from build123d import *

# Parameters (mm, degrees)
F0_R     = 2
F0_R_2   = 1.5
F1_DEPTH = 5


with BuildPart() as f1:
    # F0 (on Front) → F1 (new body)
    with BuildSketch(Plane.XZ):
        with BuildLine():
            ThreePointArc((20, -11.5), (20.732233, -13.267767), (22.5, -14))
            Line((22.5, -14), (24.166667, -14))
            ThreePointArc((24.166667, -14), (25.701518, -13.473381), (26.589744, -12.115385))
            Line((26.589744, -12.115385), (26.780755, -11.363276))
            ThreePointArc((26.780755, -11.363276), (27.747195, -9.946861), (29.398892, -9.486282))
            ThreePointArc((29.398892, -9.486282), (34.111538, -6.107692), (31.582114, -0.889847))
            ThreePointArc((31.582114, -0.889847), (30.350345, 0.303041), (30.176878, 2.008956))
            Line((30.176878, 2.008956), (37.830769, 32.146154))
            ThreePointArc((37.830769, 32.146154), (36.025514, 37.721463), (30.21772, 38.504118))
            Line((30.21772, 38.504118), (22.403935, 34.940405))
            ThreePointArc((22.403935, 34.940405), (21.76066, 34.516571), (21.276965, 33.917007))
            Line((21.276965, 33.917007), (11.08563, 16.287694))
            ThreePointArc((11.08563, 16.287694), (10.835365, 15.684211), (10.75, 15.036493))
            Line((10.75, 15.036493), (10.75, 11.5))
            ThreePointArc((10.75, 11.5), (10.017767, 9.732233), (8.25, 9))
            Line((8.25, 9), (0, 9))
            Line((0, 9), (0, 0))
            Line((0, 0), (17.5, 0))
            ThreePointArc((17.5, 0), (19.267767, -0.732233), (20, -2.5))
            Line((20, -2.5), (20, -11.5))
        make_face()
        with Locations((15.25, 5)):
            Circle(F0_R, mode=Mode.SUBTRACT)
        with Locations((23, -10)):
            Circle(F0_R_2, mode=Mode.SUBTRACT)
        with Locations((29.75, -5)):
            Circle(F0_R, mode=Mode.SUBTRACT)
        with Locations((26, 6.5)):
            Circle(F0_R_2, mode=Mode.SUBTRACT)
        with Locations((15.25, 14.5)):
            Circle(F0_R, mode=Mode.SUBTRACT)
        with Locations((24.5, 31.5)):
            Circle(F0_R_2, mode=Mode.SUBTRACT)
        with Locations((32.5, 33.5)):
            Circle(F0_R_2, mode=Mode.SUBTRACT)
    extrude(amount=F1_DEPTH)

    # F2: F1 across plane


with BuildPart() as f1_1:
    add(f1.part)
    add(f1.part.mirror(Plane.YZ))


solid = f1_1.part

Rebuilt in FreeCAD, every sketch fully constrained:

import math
import FreeCAD as App
import Part
import Sketcher

V = App.Vector
Q = App.Units.Quantity

doc = App.newDocument("Part")
body = doc.addObject("PartDesign::Body", "Body")

sketch1 = body.newObject("Sketcher::SketchObject", "Sketch")
sketch1.AttachmentSupport = (doc.getObject("XZ_Plane"), [""])
sketch1.MapMode = "FlatFace"
sketch1.addGeometry([
    Part.ArcOfCircle(Part.Circle(V(22.5, -11.5, 0), V(0, 0, 1), 2.5), math.radians(179.999996), math.radians(270.000004)),
    Part.LineSegment(V(22.5, -14, 0), V(24.166667, -14, 0)),
    Part.ArcOfCircle(Part.Circle(V(24.166667, -11.5, 0), V(0, 0, 1), 2.5), math.radians(-89.999999), math.radians(-14.250047)),
    Part.LineSegment(V(26.589744, -12.115385, 0), V(26.780755, -11.363276, 0)),
    Part.ArcOfCircle(Part.Circle(V(29.203831, -11.97866, 0), V(0, 0, 1), 2.499999), math.radians(85.52499), math.radians(165.749979)),
    Part.ArcOfCircle(Part.Circle(V(29.749999, -5, 0), V(0, 0, 1), 4.5), math.radians(-94.474983), math.radians(65.974913)),
    Part.ArcOfCircle(Part.Circle(V(32.599954, 1.393571, 0), V(0, 0, 1), 2.499999), math.radians(165.749949), math.radians(245.974947)),
    Part.LineSegment(V(30.176878, 2.008956, 0), V(37.830769, 32.146154, 0)),
    Part.ArcOfCircle(Part.Circle(V(32.5, 33.5, 0), V(0, 0, 1), 5.5), math.radians(-14.250033), math.radians(114.516799)),
    Part.LineSegment(V(30.21772, 38.504118, 0), V(22.403935, 34.940405, 0)),
    Part.ArcOfCircle(Part.Circle(V(23.441337, 32.665803, 0), V(0, 0, 1), 2.500004), math.radians(114.516809), math.radians(149.968175)),
    Part.LineSegment(V(21.276965, 33.917007, 0), V(11.08563, 16.287694, 0)),
    Part.ArcOfCircle(Part.Circle(V(13.25, 15.036494, 0), V(0, 0, 1), 2.5), math.radians(149.968226), math.radians(180.000015)),
    Part.LineSegment(V(10.75, 15.036493, 0), V(10.75, 11.5, 0)),
    Part.ArcOfCircle(Part.Circle(V(8.25, 11.5, 0), V(0, 0, 1), 2.5), math.radians(-90.000004), math.radians(0.000004)),
    Part.LineSegment(V(8.25, 9, 0), V(0, 9, 0)),
    Part.LineSegment(V(0, 9, 0), V(0, 0, 0)),
    Part.LineSegment(V(0, 0, 0), V(17.5, 0, 0)),
    Part.ArcOfCircle(Part.Circle(V(17.5, -2.5, 0), V(0, 0, 1), 2.5), math.radians(-0.000004), math.radians(90.000004)),
    Part.LineSegment(V(20, -2.5, 0), V(20, -11.5, 0)),
    Part.Circle(V(23, -10, 0), V(0, 0, 1), 1.5),
    Part.Circle(V(15.25, 5, 0), V(0, 0, 1), 2),
    Part.Circle(V(29.75, -5, 0), V(0, 0, 1), 2),
    Part.Circle(V(26, 6.5, 0), V(0, 0, 1), 1.5),
    Part.Circle(V(15.25, 14.5, 0), V(0, 0, 1), 2),
    Part.Circle(V(24.5, 31.5, 0), V(0, 0, 1), 1.5),
    Part.Circle(V(32.5, 33.5, 0), V(0, 0, 1), 1.5),
], False)
sketch1.addConstraint([
    Sketcher.Constraint("Coincident", 0, 2, 1, 1),
    Sketcher.Constraint("Coincident", 1, 2, 2, 1),
    Sketcher.Constraint("Coincident", 2, 2, 3, 1),
    Sketcher.Constraint("Coincident", 3, 2, 4, 2),
    Sketcher.Constraint("Coincident", 4, 1, 5, 1),
    Sketcher.Constraint("Coincident", 5, 2, 6, 2),
    Sketcher.Constraint("Coincident", 6, 1, 7, 1),
    Sketcher.Constraint("Coincident", 7, 2, 8, 1),
    Sketcher.Constraint("Coincident", 8, 2, 9, 1),
    Sketcher.Constraint("Coincident", 9, 2, 10, 1),
    Sketcher.Constraint("Coincident", 10, 2, 11, 1),
    Sketcher.Constraint("Coincident", 11, 2, 12, 1),
    Sketcher.Constraint("Coincident", 12, 2, 13, 1),
    Sketcher.Constraint("Coincident", 13, 2, 14, 2),
    Sketcher.Constraint("Coincident", 14, 1, 15, 1),
    Sketcher.Constraint("Coincident", 15, 2, 16, 1),
    Sketcher.Constraint("Coincident", 16, 2, 17, 1),
    Sketcher.Constraint("Coincident", 17, 2, 18, 2),
    Sketcher.Constraint("Coincident", 18, 1, 19, 1),
    Sketcher.Constraint("Coincident", 19, 2, 0, 1),
    Sketcher.Constraint("Horizontal", 1),
    Sketcher.Constraint("Vertical", 13),
    Sketcher.Constraint("Horizontal", 15),
    Sketcher.Constraint("Vertical", 16),
    Sketcher.Constraint("Horizontal", 17),
    Sketcher.Constraint("Vertical", 19),
    Sketcher.Constraint("Coincident", 16, 2, -1, 1),
    Sketcher.Constraint("Coincident", 22, 3, 5, 3),
    Sketcher.Constraint("Coincident", 26, 3, 8, 3),
    Sketcher.Constraint("Diameter", 20, Q("3 mm")),
    Sketcher.Constraint("Diameter", 21, Q("4 mm")),
    Sketcher.Constraint("Diameter", 22, Q("4 mm")),
    Sketcher.Constraint("Diameter", 23, Q("3 mm")),
    Sketcher.Constraint("Diameter", 24, Q("4 mm")),
    Sketcher.Constraint("Diameter", 25, Q("3 mm")),
    Sketcher.Constraint("Diameter", 26, Q("3 mm")),
    Sketcher.Constraint("Radius", 0, Q("2.5 mm")),
    Sketcher.Constraint("Radius", 2, Q("2.5 mm")),
    Sketcher.Constraint("Radius", 4, Q("2.499999 mm")),
    Sketcher.Constraint("Radius", 5, Q("4.5 mm")),
    Sketcher.Constraint("Radius", 6, Q("2.499999 mm")),
    Sketcher.Constraint("Radius", 8, Q("5.5 mm")),
    Sketcher.Constraint("Radius", 12, Q("2.5 mm")),
    Sketcher.Constraint("Radius", 14, Q("2.5 mm")),
    Sketcher.Constraint("Radius", 18, Q("2.5 mm")),
    Sketcher.Constraint("DistanceY", 16, 2, 16, 1, Q("9 mm")),
    Sketcher.Constraint("DistanceY", 19, 2, 19, 1, Q("9 mm")),
    Sketcher.Constraint("DistanceX", 17, 1, 17, 2, Q("17.5 mm")),
    Sketcher.Constraint("DistanceY", 5, 3, -1, 1, Q("5 mm")),
    Sketcher.Constraint("DistanceX", -1, 1, 20, 3, Q("23 mm")),
    Sketcher.Constraint("DistanceY", 20, 3, -1, 1, Q("10 mm")),
    Sketcher.Constraint("DistanceY", -1, 1, 21, 3, Q("5 mm")),
    Sketcher.Constraint("DistanceX", -1, 1, 23, 3, Q("26 mm")),
    Sketcher.Constraint("DistanceY", 0, 2, -1, 1, Q("14 mm")),
    Sketcher.Constraint("DistanceX", -1, 1, 18, 1, Q("20 mm")),
    Sketcher.Constraint("DistanceY", 2, 3, 8, 3, Q("45 mm")),
    Sketcher.Constraint("DistanceX", 0, 3, 8, 3, Q("10 mm")),
    Sketcher.Constraint("DistanceX", 14, 3, 21, 3, Q("7 mm")),
    Sketcher.Constraint("DistanceY", 18, 3, 23, 3, Q("9 mm")),
    Sketcher.Constraint("DistanceX", 12, 3, 24, 3, Q("2 mm")),
    Sketcher.Constraint("DistanceY", 14, 3, 24, 3, Q("3 mm")),
    Sketcher.Constraint("DistanceX", 25, 3, 8, 3, Q("8 mm")),
    Sketcher.Constraint("DistanceY", 25, 3, 8, 3, Q("2 mm")),
    Sketcher.Constraint("DistanceY", 13, 2, 24, 3, Q("3 mm")),
    Sketcher.Constraint("DistanceX", 14, 1, 12, 3, Q("5 mm")),
    Sketcher.Constraint("DistanceY", 0, 3, 18, 1, Q("9 mm")),
    Sketcher.Constraint("DistanceX", 15, 2, 15, 1, Q("8.25 mm")),
    Sketcher.Constraint("DistanceX", -1, 1, 0, 2, Q("22.5 mm")),
    Sketcher.Constraint("DistanceX", 12, 3, 5, 3, Q("16.499999 mm")),
    Sketcher.Constraint("Radius", 10, Q("2.500004 mm")),
    Sketcher.Constraint("DistanceX", 9, 2, 10, 3, Q("1.037402 mm")),
    Sketcher.Constraint("DistanceY", 10, 2, 9, 2, Q("1.023398 mm")),
    Sketcher.Constraint("DistanceY", 12, 3, 11, 2, Q("1.2512 mm")),
    Sketcher.Constraint("DistanceY", 12, 2, 11, 2, Q("1.251201 mm")),
    Sketcher.Constraint("Distance", 9, Q("8.58809 mm")),
    Sketcher.Constraint("DistanceX", 1, 1, 1, 2, Q("1.666667 mm")),
    Sketcher.Constraint("DistanceY", 13, 2, 13, 1, Q("3.536493 mm")),
    Sketcher.Constraint("DistanceX", -1, 1, 4, 3, Q("29.203831 mm")),
    Sketcher.Constraint("DistanceY", -1, 1, 6, 3, Q("1.393571 mm")),
    Sketcher.Constraint("DistanceX", -1, 1, 4, 1, Q("29.398892 mm")),
    Sketcher.Constraint("DistanceX", -1, 1, 7, 2, Q("37.830769 mm")),
    Sketcher.Constraint("DistanceX", -1, 1, 8, 2, Q("30.21772 mm")),
    Sketcher.Constraint("DistanceY", 6, 3, 10, 3, Q("31.272232 mm")),
    Sketcher.Constraint("DistanceX", 10, 3, 2, 3, Q("0.72533 mm")),
    Sketcher.Constraint("DistanceX", 2, 2, 3, 2, Q("0.191011 mm")),
    Sketcher.Constraint("DistanceX", 2, 3, 3, 2, Q("2.614088 mm")),
    Sketcher.Constraint("DistanceX", 5, 2, 6, 3, Q("1.01784 mm")),
    Sketcher.Constraint("DistanceX", 5, 3, 6, 1, Q("0.426879 mm")),
])
pad1 = body.newObject("PartDesign::Pad", "Pad")
pad1.Profile = sketch1
pad1.Length = 5
body2 = doc.addObject("PartDesign::Body", "Body001")
doc.recompute()

body2.BaseFeature = body
doc.recompute()

mirroring = doc.addObject("Part::Mirroring", "Mirroring")
mirroring.Source = body
mirroring.Base = V(0, 0, 0)
mirroring.Normal = V(1, 0, 0)
body3 = doc.addObject("PartDesign::Body", "Body002")
body3.BaseFeature = mirroring
boolean = body2.newObject("PartDesign::Boolean", "Boolean")
boolean.Type = "Fuse"
boolean.addObjects([body3])
doc.recompute()
mirroring.Visibility = False

doc.recompute()
